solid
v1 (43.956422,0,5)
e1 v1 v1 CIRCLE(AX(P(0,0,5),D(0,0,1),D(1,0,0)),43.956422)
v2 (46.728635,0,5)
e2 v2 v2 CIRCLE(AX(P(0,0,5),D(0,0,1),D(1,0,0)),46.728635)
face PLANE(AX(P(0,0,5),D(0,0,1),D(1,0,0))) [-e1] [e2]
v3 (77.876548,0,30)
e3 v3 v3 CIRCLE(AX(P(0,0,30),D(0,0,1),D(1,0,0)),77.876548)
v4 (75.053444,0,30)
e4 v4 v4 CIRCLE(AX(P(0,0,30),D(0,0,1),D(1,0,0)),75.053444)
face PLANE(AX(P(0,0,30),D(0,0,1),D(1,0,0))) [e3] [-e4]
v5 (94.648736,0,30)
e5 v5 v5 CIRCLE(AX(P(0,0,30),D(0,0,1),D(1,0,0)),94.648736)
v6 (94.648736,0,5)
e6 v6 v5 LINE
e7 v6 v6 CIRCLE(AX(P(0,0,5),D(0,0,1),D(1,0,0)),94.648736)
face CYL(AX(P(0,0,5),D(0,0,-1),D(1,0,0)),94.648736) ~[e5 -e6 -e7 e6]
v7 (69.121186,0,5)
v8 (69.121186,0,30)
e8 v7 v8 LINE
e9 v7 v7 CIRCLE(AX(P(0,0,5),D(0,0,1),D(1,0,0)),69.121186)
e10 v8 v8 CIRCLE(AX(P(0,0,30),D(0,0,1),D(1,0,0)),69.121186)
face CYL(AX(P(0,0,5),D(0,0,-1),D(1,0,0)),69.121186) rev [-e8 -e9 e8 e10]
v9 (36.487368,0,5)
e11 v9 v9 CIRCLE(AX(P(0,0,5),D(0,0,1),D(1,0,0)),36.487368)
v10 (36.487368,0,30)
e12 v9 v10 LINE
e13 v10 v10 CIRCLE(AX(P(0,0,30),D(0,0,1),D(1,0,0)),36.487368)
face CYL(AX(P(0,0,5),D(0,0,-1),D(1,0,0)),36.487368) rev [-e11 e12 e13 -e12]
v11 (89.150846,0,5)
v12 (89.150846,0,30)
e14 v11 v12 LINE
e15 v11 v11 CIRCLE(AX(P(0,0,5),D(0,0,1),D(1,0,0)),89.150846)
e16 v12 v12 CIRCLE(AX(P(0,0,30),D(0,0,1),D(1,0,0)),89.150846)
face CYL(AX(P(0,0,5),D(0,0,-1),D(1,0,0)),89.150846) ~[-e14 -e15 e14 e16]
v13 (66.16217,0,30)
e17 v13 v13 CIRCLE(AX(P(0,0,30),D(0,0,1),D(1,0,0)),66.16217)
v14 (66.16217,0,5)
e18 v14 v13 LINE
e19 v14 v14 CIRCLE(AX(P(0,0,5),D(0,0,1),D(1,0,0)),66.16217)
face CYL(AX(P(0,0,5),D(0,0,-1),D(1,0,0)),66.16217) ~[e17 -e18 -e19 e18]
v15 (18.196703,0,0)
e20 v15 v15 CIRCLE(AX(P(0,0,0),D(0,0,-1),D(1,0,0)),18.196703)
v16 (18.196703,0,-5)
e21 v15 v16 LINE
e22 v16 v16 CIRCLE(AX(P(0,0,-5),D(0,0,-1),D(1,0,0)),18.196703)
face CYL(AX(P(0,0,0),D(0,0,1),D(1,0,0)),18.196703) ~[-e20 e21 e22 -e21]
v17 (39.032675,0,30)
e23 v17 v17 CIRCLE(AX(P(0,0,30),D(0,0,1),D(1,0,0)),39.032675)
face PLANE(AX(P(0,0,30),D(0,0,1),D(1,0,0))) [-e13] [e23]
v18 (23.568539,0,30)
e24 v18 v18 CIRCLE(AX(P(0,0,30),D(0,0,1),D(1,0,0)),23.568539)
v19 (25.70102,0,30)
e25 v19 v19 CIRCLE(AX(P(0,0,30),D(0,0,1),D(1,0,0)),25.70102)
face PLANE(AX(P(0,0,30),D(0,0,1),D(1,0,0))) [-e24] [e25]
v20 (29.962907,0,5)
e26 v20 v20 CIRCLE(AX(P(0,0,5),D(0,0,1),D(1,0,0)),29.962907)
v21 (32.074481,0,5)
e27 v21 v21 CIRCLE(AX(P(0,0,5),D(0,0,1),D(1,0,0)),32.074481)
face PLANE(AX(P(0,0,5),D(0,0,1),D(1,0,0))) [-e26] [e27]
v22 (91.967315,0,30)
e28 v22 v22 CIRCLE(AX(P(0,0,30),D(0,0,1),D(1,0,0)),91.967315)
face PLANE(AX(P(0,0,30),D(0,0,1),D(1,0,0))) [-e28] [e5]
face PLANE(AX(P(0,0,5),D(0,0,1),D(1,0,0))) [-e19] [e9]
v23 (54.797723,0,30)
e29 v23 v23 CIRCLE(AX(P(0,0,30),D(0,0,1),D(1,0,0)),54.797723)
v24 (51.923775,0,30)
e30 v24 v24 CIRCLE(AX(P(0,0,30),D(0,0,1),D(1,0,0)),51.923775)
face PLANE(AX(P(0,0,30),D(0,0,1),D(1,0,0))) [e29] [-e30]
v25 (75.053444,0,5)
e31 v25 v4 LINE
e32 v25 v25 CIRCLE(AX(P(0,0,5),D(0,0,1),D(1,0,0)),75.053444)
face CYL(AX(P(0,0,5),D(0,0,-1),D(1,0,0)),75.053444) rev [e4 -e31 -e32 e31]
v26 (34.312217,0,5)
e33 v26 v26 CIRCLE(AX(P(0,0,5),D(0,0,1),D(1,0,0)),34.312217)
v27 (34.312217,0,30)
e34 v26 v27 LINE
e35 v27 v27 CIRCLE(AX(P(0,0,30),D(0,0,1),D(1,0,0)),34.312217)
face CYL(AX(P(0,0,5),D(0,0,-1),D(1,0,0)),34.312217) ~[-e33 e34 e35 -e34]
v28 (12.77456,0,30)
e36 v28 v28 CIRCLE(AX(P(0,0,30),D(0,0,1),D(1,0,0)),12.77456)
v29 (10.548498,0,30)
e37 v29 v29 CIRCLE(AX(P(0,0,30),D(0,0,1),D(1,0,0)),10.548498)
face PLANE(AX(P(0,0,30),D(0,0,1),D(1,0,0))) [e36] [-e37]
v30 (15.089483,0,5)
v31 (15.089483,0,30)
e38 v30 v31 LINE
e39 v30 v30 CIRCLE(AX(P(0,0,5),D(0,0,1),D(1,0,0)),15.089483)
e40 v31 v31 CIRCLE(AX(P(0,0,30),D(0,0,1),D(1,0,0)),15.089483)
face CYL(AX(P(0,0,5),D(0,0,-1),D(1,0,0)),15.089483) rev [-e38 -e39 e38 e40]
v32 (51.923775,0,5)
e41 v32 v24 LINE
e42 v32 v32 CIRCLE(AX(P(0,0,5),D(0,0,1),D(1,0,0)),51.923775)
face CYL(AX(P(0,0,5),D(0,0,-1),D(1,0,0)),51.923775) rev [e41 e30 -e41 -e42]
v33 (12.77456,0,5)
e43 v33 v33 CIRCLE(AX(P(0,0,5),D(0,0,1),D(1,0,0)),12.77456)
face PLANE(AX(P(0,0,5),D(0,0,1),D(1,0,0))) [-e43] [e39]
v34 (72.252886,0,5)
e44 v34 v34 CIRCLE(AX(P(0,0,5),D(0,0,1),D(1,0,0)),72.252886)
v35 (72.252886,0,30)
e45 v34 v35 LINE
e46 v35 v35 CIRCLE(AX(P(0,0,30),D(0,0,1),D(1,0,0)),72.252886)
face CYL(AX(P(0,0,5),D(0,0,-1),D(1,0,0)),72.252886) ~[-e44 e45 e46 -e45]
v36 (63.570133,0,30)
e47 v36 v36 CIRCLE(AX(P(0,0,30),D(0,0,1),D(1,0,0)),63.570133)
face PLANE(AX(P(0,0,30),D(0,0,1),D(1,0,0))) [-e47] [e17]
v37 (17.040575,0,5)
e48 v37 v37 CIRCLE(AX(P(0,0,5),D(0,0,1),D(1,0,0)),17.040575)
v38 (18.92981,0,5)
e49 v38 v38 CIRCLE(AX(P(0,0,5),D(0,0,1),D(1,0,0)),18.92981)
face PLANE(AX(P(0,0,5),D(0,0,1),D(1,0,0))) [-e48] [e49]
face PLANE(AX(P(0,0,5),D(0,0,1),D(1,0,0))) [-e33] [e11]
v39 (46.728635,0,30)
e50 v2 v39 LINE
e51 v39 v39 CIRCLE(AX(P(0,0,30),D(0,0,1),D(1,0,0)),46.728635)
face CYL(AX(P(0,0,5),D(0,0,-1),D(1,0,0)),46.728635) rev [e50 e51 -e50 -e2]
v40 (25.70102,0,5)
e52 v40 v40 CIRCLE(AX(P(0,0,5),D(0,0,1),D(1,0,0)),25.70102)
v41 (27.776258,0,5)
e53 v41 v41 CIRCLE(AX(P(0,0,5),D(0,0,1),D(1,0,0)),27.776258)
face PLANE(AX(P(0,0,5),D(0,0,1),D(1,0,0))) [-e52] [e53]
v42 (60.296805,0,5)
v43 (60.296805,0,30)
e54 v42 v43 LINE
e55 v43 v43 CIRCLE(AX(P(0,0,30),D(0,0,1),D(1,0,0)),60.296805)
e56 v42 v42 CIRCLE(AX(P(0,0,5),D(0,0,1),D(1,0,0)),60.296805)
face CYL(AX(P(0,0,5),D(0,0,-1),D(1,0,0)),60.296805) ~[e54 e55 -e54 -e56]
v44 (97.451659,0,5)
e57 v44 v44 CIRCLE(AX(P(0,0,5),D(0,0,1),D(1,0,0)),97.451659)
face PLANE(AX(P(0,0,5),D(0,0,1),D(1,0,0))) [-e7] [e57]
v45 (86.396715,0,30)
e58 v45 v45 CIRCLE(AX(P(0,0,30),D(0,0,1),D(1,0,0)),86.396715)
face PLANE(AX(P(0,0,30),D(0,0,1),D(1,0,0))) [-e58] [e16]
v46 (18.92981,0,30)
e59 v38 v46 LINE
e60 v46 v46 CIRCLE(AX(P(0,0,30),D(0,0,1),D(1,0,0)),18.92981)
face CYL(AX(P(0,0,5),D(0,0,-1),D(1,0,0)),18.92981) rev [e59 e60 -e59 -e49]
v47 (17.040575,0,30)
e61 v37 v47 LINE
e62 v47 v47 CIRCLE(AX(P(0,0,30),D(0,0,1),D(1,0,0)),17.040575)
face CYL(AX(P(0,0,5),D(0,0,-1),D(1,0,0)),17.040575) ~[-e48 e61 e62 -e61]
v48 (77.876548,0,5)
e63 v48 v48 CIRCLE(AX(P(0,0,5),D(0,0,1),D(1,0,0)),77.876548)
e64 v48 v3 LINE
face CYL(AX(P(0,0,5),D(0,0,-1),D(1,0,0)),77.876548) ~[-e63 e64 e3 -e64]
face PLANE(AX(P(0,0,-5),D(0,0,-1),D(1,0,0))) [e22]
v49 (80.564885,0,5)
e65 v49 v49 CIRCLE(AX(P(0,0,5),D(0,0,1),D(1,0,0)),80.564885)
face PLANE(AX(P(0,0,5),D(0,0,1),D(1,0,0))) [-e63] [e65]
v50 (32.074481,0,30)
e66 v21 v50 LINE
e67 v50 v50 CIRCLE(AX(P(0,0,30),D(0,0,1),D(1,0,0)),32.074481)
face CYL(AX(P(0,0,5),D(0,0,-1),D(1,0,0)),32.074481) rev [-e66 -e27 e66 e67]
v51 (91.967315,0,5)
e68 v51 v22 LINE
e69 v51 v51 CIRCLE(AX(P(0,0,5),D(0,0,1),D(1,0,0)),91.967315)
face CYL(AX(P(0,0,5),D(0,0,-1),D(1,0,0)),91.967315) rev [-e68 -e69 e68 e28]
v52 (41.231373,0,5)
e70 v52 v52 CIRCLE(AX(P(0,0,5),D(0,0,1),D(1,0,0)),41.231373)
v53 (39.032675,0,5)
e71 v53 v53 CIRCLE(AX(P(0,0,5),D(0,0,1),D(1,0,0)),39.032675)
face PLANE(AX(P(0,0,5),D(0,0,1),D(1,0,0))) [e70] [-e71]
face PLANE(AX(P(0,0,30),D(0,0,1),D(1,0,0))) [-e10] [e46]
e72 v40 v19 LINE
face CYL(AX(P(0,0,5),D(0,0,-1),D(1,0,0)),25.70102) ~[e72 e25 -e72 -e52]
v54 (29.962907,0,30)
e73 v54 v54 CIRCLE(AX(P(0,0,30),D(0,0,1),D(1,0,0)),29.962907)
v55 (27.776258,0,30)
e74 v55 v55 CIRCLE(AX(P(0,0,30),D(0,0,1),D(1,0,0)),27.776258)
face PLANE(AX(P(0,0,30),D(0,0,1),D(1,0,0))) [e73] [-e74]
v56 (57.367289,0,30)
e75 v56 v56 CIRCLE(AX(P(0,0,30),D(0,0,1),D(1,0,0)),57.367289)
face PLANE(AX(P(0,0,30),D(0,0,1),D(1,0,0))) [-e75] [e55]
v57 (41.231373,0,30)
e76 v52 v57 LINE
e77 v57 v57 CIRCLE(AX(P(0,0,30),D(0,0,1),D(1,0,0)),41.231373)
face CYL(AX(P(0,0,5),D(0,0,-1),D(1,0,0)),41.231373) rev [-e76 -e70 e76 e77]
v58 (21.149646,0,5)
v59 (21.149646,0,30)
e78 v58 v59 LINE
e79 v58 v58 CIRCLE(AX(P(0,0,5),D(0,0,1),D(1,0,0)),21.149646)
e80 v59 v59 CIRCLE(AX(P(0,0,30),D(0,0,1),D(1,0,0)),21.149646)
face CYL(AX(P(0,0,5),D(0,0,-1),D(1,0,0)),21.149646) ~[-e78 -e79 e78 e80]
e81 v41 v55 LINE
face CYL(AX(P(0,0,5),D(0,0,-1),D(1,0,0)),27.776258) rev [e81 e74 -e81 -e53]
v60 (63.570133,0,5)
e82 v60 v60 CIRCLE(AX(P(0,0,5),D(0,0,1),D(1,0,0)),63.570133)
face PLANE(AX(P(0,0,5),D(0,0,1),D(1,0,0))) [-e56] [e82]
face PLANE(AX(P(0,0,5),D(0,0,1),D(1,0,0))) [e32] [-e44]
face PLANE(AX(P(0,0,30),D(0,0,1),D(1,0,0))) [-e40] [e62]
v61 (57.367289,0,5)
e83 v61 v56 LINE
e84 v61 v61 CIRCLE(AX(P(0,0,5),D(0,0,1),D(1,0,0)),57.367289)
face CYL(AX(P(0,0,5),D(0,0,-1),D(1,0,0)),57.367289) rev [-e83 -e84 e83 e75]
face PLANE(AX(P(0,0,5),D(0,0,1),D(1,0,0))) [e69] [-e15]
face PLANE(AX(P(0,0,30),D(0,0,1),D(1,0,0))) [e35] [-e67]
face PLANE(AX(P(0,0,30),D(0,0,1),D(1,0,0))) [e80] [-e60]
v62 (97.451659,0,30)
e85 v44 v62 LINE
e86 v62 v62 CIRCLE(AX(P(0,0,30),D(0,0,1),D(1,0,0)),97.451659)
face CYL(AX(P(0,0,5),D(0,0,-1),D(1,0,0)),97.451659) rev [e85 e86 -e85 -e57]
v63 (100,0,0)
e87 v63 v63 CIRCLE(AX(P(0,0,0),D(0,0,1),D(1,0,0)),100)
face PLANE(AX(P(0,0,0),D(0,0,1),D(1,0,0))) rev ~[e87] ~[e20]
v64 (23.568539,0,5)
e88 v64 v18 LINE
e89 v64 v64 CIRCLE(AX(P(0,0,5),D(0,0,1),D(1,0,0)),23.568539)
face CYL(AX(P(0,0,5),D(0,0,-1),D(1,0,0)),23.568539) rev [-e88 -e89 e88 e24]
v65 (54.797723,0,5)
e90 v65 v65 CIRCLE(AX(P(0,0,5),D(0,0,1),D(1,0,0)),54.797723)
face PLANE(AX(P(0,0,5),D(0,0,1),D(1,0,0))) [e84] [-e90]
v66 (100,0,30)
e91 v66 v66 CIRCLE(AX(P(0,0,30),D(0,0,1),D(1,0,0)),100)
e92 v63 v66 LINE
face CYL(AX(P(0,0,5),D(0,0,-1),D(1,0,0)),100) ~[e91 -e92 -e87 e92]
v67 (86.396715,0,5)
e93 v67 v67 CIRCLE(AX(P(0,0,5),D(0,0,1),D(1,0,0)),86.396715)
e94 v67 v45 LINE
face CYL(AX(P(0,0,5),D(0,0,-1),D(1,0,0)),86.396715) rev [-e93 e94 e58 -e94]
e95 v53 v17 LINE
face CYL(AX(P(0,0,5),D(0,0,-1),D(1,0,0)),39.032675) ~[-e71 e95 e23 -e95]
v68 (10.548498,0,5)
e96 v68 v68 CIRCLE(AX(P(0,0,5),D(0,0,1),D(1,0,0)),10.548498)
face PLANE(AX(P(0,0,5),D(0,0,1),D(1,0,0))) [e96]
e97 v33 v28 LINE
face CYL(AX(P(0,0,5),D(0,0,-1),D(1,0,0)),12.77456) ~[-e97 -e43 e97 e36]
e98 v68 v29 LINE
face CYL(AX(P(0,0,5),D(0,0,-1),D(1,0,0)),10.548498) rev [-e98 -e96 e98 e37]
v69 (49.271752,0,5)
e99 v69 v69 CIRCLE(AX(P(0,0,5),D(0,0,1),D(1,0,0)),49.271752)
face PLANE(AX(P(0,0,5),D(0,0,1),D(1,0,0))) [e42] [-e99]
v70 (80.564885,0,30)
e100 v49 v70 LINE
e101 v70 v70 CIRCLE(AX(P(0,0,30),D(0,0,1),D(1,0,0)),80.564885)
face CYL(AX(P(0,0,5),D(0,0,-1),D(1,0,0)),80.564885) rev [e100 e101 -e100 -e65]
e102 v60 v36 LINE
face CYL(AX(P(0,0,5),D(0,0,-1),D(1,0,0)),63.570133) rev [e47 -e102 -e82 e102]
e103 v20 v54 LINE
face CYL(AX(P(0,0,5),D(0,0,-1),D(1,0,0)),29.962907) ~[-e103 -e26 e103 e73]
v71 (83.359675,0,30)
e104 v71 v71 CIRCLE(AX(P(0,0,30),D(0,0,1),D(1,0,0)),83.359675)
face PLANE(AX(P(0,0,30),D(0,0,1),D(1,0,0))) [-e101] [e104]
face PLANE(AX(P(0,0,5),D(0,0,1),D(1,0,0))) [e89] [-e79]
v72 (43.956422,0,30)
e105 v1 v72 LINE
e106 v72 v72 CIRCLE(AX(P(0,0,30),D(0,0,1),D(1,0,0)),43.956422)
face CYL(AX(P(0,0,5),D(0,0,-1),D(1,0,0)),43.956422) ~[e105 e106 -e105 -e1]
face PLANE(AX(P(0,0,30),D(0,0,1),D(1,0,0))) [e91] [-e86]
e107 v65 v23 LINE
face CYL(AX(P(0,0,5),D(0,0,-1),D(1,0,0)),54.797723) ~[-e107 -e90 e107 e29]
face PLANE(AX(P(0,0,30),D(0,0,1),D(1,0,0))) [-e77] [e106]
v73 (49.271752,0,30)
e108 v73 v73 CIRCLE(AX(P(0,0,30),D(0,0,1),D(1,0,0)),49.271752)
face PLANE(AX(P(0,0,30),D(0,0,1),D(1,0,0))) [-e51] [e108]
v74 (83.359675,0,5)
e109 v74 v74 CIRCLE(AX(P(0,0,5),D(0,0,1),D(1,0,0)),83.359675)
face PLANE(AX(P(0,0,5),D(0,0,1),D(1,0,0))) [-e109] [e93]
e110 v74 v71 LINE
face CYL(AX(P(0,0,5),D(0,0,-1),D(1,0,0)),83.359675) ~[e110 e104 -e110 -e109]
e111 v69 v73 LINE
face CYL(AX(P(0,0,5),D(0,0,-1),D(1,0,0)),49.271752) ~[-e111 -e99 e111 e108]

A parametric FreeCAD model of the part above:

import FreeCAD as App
import Part
import Sketcher
from FreeCAD import Vector
Q = App.Units.Quantity

doc = App.newDocument("Part")
body = doc.addObject("PartDesign::Body", "Body")

# Sketch on XY plane
sketch1 = doc.addObject("Sketcher::SketchObject", "Sketch")
body.addObject(sketch1)
sketch1.AttachmentSupport = (doc.XY_Plane, [""])
sketch1.MapMode = "FlatFace"
sketch1.addGeometry(Part.Circle(Vector(0, 0, 0), Vector(0, 0, 1), 100), False)
sketch1.addConstraint([
    Sketcher.Constraint("Coincident", 0, 3, -1, 1),
    Sketcher.Constraint("Diameter", 0, Q("200 mm")),
])
pad1 = doc.addObject("PartDesign::Pad", "Pad")
body.addObject(pad1)
pad1.Profile = sketch1
pad1.Length = 5

# Sketch on XY plane
sketch2 = doc.addObject("Sketcher::SketchObject", "Sketch001")
body.addObject(sketch2)
sketch2.AttachmentSupport = (doc.XY_Plane, [""])
sketch2.MapMode = "FlatFace"
sketch2.AttachmentOffset = App.Placement(Vector(0, 0, 5), App.Rotation())
sketch2.addGeometry([
    Part.Circle(Vector(0, 0, 0), Vector(0, 0, 1), 100),  # 0
    Part.Circle(Vector(0, 0, 0), Vector(0, 0, 1), 97),  # 1
    Part.Circle(Vector(0, 0, 0), Vector(0, 0, 1), 95),  # 2
    Part.Circle(Vector(0, 0, 0), Vector(0, 0, 1), 92),  # 3
    Part.Circle(Vector(0, 0, 0), Vector(0, 0, 1), 89),  # 4
    Part.Circle(Vector(0, 0, 0), Vector(0, 0, 1), 86),  # 5
    Part.Circle(Vector(0, 0, 0), Vector(0, 0, 1), 83),  # 6
    Part.Circle(Vector(0, 0, 0), Vector(0, 0, 1), 81),  # 7
    Part.Circle(Vector(0, 0, 0), Vector(0, 0, 1), 78),  # 8
    Part.Circle(Vector(0, 0, 0), Vector(0, 0, 1), 75),  # 9
    Part.Circle(Vector(0, 0, 0), Vector(0, 0, 1), 72),  # 10
    Part.Circle(Vector(0, 0, 0), Vector(0, 0, 1), 69),  # 11
    Part.Circle(Vector(0, 0, 0), Vector(0, 0, 1), 66),  # 12
    Part.Circle(Vector(0, 0, 0), Vector(0, 0, 1), 64),  # 13
    Part.Circle(Vector(0, 0, 0), Vector(0, 0, 1), 60),  # 14
    Part.Circle(Vector(0, 0, 0), Vector(0, 0, 1), 57),  # 15
    Part.Circle(Vector(0, 0, 0), Vector(0, 0, 1), 55),  # 16
    Part.Circle(Vector(0, 0, 0), Vector(0, 0, 1), 52),  # 17
    Part.Circle(Vector(0, 0, 0), Vector(0, 0, 1), 49),  # 18
    Part.Circle(Vector(0, 0, 0), Vector(0, 0, 1), 47),  # 19
    Part.Circle(Vector(0, 0, 0), Vector(0, 0, 1), 44),  # 20
    Part.Circle(Vector(0, 0, 0), Vector(0, 0, 1), 41),  # 21
    Part.Circle(Vector(0, 0, 0), Vector(0, 0, 1), 39),  # 22
    Part.Circle(Vector(0, 0, 0), Vector(0, 0, 1), 36),  # 23
    Part.Circle(Vector(0, 0, 0), Vector(0, 0, 1), 34),  # 24
    Part.Circle(Vector(0, 0, 0), Vector(0, 0, 1), 32),  # 25
    Part.Circle(Vector(0, 0, 0), Vector(0, 0, 1), 30),  # 26
    Part.Circle(Vector(0, 0, 0), Vector(0, 0, 1), 28),  # 27
    Part.Circle(Vector(0, 0, 0), Vector(0, 0, 1), 26),  # 28
    Part.Circle(Vector(0, 0, 0), Vector(0, 0, 1), 24),  # 29
    Part.Circle(Vector(0, 0, 0), Vector(0, 0, 1), 21),  # 30
    Part.Circle(Vector(0, 0, 0), Vector(0, 0, 1), 19),  # 31
    Part.Circle(Vector(0, 0, 0), Vector(0, 0, 1), 17),  # 32
    Part.Circle(Vector(0, 0, 0), Vector(0, 0, 1), 15),  # 33
    Part.Circle(Vector(0, 0, 0), Vector(0, 0, 1), 13),  # 34
    Part.Circle(Vector(0, 0, 0), Vector(0, 0, 1), 11),  # 35
], False)
sketch2.addConstraint([
    Sketcher.Constraint("Coincident", 0, 3, -1, 1),
    Sketcher.Constraint("Coincident", 1, 3, -1, 1),
    Sketcher.Constraint("Coincident", 2, 3, -1, 1),
    Sketcher.Constraint("Coincident", 3, 3, -1, 1),
    Sketcher.Constraint("Coincident", 4, 3, -1, 1),
    Sketcher.Constraint("Coincident", 5, 3, -1, 1),
    Sketcher.Constraint("Coincident", 6, 3, -1, 1),
    Sketcher.Constraint("Coincident", 7, 3, -1, 1),
    Sketcher.Constraint("Coincident", 8, 3, -1, 1),
    Sketcher.Constraint("Coincident", 9, 3, -1, 1),
    Sketcher.Constraint("Coincident", 10, 3, -1, 1),
    Sketcher.Constraint("Coincident", 11, 3, -1, 1),
    Sketcher.Constraint("Coincident", 12, 3, -1, 1),
    Sketcher.Constraint("Coincident", 13, 3, -1, 1),
    Sketcher.Constraint("Coincident", 14, 3, -1, 1),
    Sketcher.Constraint("Coincident", 15, 3, -1, 1),
    Sketcher.Constraint("Coincident", 16, 3, -1, 1),
    Sketcher.Constraint("Coincident", 17, 3, -1, 1),
    Sketcher.Constraint("Coincident", 18, 3, -1, 1),
    Sketcher.Constraint("Coincident", 19, 3, -1, 1),
    Sketcher.Constraint("Coincident", 20, 3, -1, 1),
    Sketcher.Constraint("Coincident", 21, 3, -1, 1),
    Sketcher.Constraint("Coincident", 22, 3, -1, 1),
    Sketcher.Constraint("Coincident", 23, 3, -1, 1),
    Sketcher.Constraint("Coincident", 24, 3, -1, 1),
    Sketcher.Constraint("Coincident", 25, 3, -1, 1),
    Sketcher.Constraint("Coincident", 26, 3, -1, 1),
    Sketcher.Constraint("Coincident", 27, 3, -1, 1),
    Sketcher.Constraint("Coincident", 28, 3, -1, 1),
    Sketcher.Constraint("Coincident", 29, 3, -1, 1),
    Sketcher.Constraint("Coincident", 30, 3, -1, 1),
    Sketcher.Constraint("Coincident", 31, 3, -1, 1),
    Sketcher.Constraint("Coincident", 32, 3, -1, 1),
    Sketcher.Constraint("Coincident", 33, 3, -1, 1),
    Sketcher.Constraint("Coincident", 34, 3, -1, 1),
    Sketcher.Constraint("Coincident", 35, 3, -1, 1),
    Sketcher.Constraint("Diameter", 0, Q("200 mm")),
    Sketcher.Constraint("Diameter", 1, Q("194.903318 mm")),
    Sketcher.Constraint("Diameter", 2, Q("189.297472 mm")),
    Sketcher.Constraint("Diameter", 3, Q("183.93463 mm")),
    Sketcher.Constraint("Diameter", 4, Q("178.301692 mm")),
    Sketcher.Constraint("Diameter", 5, Q("172.79343 mm")),
    Sketcher.Constraint("Diameter", 6, Q("166.71935 mm")),
    Sketcher.Constraint("Diameter", 7, Q("161.12977 mm")),
    Sketcher.Constraint("Diameter", 9, Q("150.106888 mm")),
    Sketcher.Constraint("Diameter", 10, Q("144.505772 mm")),
    Sketcher.Constraint("Diameter", 11, Q("138.242372 mm")),
    Sketcher.Constraint("Diameter", 12, Q("132.32434 mm")),
    Sketcher.Constraint("Diameter", 14, Q("120.59361 mm")),
    Sketcher.Constraint("Diameter", 15, Q("114.734578 mm")),
    Sketcher.Constraint("Diameter", 17, Q("103.84755 mm")),
    Sketcher.Constraint("Diameter", 19, Q("93.45727 mm")),
    Sketcher.Constraint("Diameter", 22, Q("78.06535 mm")),
    Sketcher.Constraint("Diameter", 25, Q("64.148962 mm")),
    Sketcher.Constraint("Diameter", 28, Q("51.40204 mm")),
    Sketcher.Constraint("Diameter", 29, Q("47.137078 mm")),
    Sketcher.Constraint("Diameter", 31, Q("37.85962 mm")),
    Sketcher.Constraint("Diameter", 32, Q("34.08115 mm")),
    Sketcher.Constraint("Diameter", 34, Q("25.54912 mm")),
    Sketcher.Constraint("Diameter", 8, Q("155.753096 mm")),
    Sketcher.Constraint("Diameter", 13, Q("127.140266 mm")),
    Sketcher.Constraint("Diameter", 16, Q("109.595446 mm")),
    Sketcher.Constraint("Diameter", 18, Q("98.543504 mm")),
    Sketcher.Constraint("Diameter", 20, Q("87.912844 mm")),
    Sketcher.Constraint("Diameter", 21, Q("82.462746 mm")),
    Sketcher.Constraint("Diameter", 23, Q("72.974736 mm")),
    Sketcher.Constraint("Diameter", 24, Q("68.624434 mm")),
    Sketcher.Constraint("Diameter", 26, Q("59.925814 mm")),
    Sketcher.Constraint("Diameter", 27, Q("55.552516 mm")),
    Sketcher.Constraint("Diameter", 30, Q("42.299292 mm")),
    Sketcher.Constraint("Diameter", 33, Q("30.178966 mm")),
    Sketcher.Constraint("Diameter", 35, Q("21.096996 mm")),
])
pad2 = doc.addObject("PartDesign::Pad", "Pad001")
body.addObject(pad2)
pad2.Profile = sketch2
pad2.Length = 25

# Sketch on XY plane
sketch3 = doc.addObject("Sketcher::SketchObject", "Sketch002")
body.addObject(sketch3)
sketch3.AttachmentSupport = (doc.XY_Plane, [""])
sketch3.MapMode = "FlatFace"
sketch3.addGeometry(Part.Circle(Vector(0, 0, 0), Vector(0, 0, 1), 18), False)
sketch3.addConstraint([
    Sketcher.Constraint("Coincident", 0, 3, -1, 1),
    Sketcher.Constraint("Diameter", 0, Q("36.393406 mm")),
])
pad3 = doc.addObject("PartDesign::Pad", "Pad002")
body.addObject(pad3)
pad3.Profile = sketch3
pad3.Length = 5
pad3.Reversed = True

doc.recompute()
